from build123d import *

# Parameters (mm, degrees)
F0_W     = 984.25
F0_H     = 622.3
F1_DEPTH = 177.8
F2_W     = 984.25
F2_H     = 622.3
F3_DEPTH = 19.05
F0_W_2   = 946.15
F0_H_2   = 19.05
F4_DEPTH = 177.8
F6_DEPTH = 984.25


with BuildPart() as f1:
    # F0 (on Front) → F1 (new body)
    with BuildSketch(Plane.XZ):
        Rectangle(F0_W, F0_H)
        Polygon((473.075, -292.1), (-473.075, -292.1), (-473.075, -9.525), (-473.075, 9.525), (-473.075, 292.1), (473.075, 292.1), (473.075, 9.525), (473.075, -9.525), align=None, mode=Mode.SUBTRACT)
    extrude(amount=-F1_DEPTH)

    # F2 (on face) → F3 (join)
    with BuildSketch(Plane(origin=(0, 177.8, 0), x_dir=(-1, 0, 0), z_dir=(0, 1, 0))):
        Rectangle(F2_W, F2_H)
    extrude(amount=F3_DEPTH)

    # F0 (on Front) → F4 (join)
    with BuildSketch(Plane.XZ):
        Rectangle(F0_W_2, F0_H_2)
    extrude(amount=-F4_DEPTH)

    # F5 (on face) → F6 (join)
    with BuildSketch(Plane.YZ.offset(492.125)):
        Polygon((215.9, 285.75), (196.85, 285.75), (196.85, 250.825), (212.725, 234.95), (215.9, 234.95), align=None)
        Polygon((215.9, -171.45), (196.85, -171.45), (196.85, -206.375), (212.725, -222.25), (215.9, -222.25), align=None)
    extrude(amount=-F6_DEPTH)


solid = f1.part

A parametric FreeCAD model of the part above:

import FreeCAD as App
import Part
import Sketcher
from FreeCAD import Vector
Q = App.Units.Quantity


def add_polygon(sketch, points):
    """Adds a closed chain of lines whose ends are joined by coincident constraints."""
    first, n = sketch.GeometryCount, len(points)
    for a, b in zip(points, points[1:] + points[:1]):
        sketch.addGeometry(Part.LineSegment(App.Vector(*a, 0), App.Vector(*b, 0)), False)
    for i in range(n):
        sketch.addConstraint(Sketcher.Constraint("Coincident", first + i, 2, first + (i + 1) % n, 1))

doc = App.newDocument("Part")
params = doc.addObject("Spreadsheet::Sheet", "Params")
for row, (alias, value) in enumerate([
    ("sketch1_height", "23 in"),
    ("sketch1_height2", "24.5 in"),
    ("sketch1_width", "38.75 in"),
    ("pad1_length", "7 in"),
    ("sketch2_height", "24.5 in"),
    ("sketch2_width", "38.75 in"),
    ("pad2_length", "0.75 in"),
    ("sketch3_width", "37.25 in"),
    ("sketch3_height", "0.75 in"),
    ("pad3_length", "7 in"),
    ("sketch4_height", "2 in"),
    ("sketch4_width", "0.75 in"),
    ("sketch4_width2", "0.125 in"),
    ("pad4_length", "38.75 in"),
], start=1):
    params.set(f"A{row}", alias)
    params.set(f"B{row}", "=" + value)
    params.setAlias(f"B{row}", alias)

body = doc.addObject("PartDesign::Body", "Body")

sketch1 = body.newObject("Sketcher::SketchObject", "Sketch")
sketch1.AttachmentSupport = (doc.getObject("XZ_Plane"), [""])
sketch1.MapMode = "FlatFace"
add_polygon(sketch1, [(-492, 311), (-492, -311), (492, -311), (492, 311)])
add_polygon(sketch1, [(473, 292), (473, -292), (-473, -292), (-473, 292)])
sketch1.addConstraint([
    Sketcher.Constraint("Vertical", 0),
    Sketcher.Constraint("Horizontal", 1),
    Sketcher.Constraint("Vertical", 2),
    Sketcher.Constraint("Horizontal", 3),
    Sketcher.Constraint("Vertical", 4),
    Sketcher.Constraint("Horizontal", 5),
    Sketcher.Constraint("Vertical", 6),
    Sketcher.Constraint("Horizontal", 7),
    Sketcher.Constraint("Symmetric", 0, 2, 2, 2, -1, 1),
    Sketcher.Constraint("Symmetric", 4, 2, 6, 2, -1, 1),
    Sketcher.Constraint("DistanceY", 4, 2, 4, 1, Q("23 in")),
    Sketcher.Constraint("DistanceY", 0, 2, 0, 1, Q("24.5 in")),
    Sketcher.Constraint("DistanceX", 0, 2, 4, 2, Q("38 in")),
    Sketcher.Constraint("DistanceX", 1, 1, 1, 2, Q("38.75 in")),
])
sketch1.setExpression("Constraints[18]", "Params.sketch1_height")
sketch1.setExpression("Constraints[19]", "Params.sketch1_height2")
sketch1.setExpression("Constraints[21]", "Params.sketch1_width")
pad1 = body.newObject("PartDesign::Pad", "Pad")
pad1.Profile = sketch1
pad1.setExpression("Length", "Params.pad1_length")
pad1.Reversed = True

sketch2 = body.newObject("Sketcher::SketchObject", "Sketch001")
sketch2.AttachmentSupport = (doc.getObject("XZ_Plane"), [""])
sketch2.MapMode = "FlatFace"
sketch2.AttachmentOffset = App.Placement(Vector(0, 0, -7 * 25.4), App.Rotation())
add_polygon(sketch2, [(492, 311), (492, -311), (-492, -311), (-492, 311)])
sketch2.addConstraint([
    Sketcher.Constraint("Vertical", 0),
    Sketcher.Constraint("Horizontal", 1),
    Sketcher.Constraint("Vertical", 2),
    Sketcher.Constraint("Horizontal", 3),
    Sketcher.Constraint("Symmetric", 0, 2, 2, 2, -1, 1),
    Sketcher.Constraint("DistanceY", 0, 2, 0, 1, Q("24.5 in")),
    Sketcher.Constraint("DistanceX", 1, 2, 1, 1, Q("38.75 in")),
])
sketch2.setExpression("Constraints[9]", "Params.sketch2_height")
sketch2.setExpression("Constraints[10]", "Params.sketch2_width")
pad2 = body.newObject("PartDesign::Pad", "Pad001")
pad2.Profile = sketch2
pad2.setExpression("Length", "Params.pad2_length")
pad2.Reversed = True

sketch3 = body.newObject("Sketcher::SketchObject", "Sketch002")
sketch3.AttachmentSupport = (doc.getObject("XZ_Plane"), [""])
sketch3.MapMode = "FlatFace"
add_polygon(sketch3, [(-473, 10), (-473, -10), (473, -10), (473, 10)])
sketch3.addConstraint([
    Sketcher.Constraint("Vertical", 0),
    Sketcher.Constraint("Horizontal", 1),
    Sketcher.Constraint("Vertical", 2),
    Sketcher.Constraint("Horizontal", 3),
    Sketcher.Constraint("Symmetric", 0, 2, 2, 2, -1, 1),
    Sketcher.Constraint("DistanceX", 1, 1, 1, 2, Q("37.25 in")),
    Sketcher.Constraint("DistanceY", 0, 2, 0, 1, Q("0.75 in")),
])
sketch3.setExpression("Constraints[9]", "Params.sketch3_width")
sketch3.setExpression("Constraints[10]", "Params.sketch3_height")
pad3 = body.newObject("PartDesign::Pad", "Pad002")
pad3.Profile = sketch3
pad3.setExpression("Length", "Params.pad3_length")
pad3.Reversed = True

sketch4 = body.newObject("Sketcher::SketchObject", "Sketch003")
sketch4.AttachmentSupport = (doc.getObject("YZ_Plane"), [""])
sketch4.MapMode = "FlatFace"
sketch4.AttachmentOffset = App.Placement(Vector(0, 0, 19.375 * 25.4), App.Rotation())
add_polygon(sketch4, [(215.9, 285.8), (196.8, 285.8), (196.8, 250.8), (212.7, 234.9), (215.9, 234.9)])
add_polygon(sketch4, [(215.9, -171.4), (196.8, -171.4), (196.8, -206.4), (212.7, -222.2), (215.9, -222.2)])
sketch4.addConstraint([
    Sketcher.Constraint("Horizontal", 0),
    Sketcher.Constraint("Vertical", 1),
    Sketcher.Constraint("Horizontal", 3),
    Sketcher.Constraint("Vertical", 4),
    Sketcher.Constraint("Horizontal", 5),
    Sketcher.Constraint("Vertical", 6),
    Sketcher.Constraint("Horizontal", 8),
    Sketcher.Constraint("Vertical", 9),
    Sketcher.Constraint("Parallel", 2, 7),
    Sketcher.Constraint("Vertical", 1, 2, 5, 2),
    Sketcher.Constraint("Vertical", 2, 2, 7, 2),
    Sketcher.Constraint("Vertical", 4, 2, 8, 2),
    Sketcher.Constraint("Equal", 1, 6),
    Sketcher.Constraint("DistanceY", 4, 1, 4, 2, Q("2 in")),
    Sketcher.Constraint("Angle", 2, Q("-45 deg")),
    Sketcher.Constraint("DistanceY", 5, 2, 2, 2, Q("16 in")),
    Sketcher.Constraint("DistanceX", 0, 2, 0, 1, Q("0.75 in")),
    Sketcher.Constraint("DistanceX", -1, 1, 3, 2, Q("8.5 in")),
    Sketcher.Constraint("DistanceX", 3, 1, 3, 2, Q("0.125 in")),
    Sketcher.Constraint("DistanceY", -1, 1, 0, 2, Q("11.25 in")),
])
sketch4.setExpression("Constraints[23]", "Params.sketch4_height")
sketch4.setExpression("Constraints[26]", "Params.sketch4_width")
sketch4.setExpression("Constraints[28]", "Params.sketch4_width2")
pad4 = body.newObject("PartDesign::Pad", "Pad003")
pad4.Profile = sketch4
pad4.setExpression("Length", "Params.pad4_length")
pad4.Reversed = True

doc.recompute()
